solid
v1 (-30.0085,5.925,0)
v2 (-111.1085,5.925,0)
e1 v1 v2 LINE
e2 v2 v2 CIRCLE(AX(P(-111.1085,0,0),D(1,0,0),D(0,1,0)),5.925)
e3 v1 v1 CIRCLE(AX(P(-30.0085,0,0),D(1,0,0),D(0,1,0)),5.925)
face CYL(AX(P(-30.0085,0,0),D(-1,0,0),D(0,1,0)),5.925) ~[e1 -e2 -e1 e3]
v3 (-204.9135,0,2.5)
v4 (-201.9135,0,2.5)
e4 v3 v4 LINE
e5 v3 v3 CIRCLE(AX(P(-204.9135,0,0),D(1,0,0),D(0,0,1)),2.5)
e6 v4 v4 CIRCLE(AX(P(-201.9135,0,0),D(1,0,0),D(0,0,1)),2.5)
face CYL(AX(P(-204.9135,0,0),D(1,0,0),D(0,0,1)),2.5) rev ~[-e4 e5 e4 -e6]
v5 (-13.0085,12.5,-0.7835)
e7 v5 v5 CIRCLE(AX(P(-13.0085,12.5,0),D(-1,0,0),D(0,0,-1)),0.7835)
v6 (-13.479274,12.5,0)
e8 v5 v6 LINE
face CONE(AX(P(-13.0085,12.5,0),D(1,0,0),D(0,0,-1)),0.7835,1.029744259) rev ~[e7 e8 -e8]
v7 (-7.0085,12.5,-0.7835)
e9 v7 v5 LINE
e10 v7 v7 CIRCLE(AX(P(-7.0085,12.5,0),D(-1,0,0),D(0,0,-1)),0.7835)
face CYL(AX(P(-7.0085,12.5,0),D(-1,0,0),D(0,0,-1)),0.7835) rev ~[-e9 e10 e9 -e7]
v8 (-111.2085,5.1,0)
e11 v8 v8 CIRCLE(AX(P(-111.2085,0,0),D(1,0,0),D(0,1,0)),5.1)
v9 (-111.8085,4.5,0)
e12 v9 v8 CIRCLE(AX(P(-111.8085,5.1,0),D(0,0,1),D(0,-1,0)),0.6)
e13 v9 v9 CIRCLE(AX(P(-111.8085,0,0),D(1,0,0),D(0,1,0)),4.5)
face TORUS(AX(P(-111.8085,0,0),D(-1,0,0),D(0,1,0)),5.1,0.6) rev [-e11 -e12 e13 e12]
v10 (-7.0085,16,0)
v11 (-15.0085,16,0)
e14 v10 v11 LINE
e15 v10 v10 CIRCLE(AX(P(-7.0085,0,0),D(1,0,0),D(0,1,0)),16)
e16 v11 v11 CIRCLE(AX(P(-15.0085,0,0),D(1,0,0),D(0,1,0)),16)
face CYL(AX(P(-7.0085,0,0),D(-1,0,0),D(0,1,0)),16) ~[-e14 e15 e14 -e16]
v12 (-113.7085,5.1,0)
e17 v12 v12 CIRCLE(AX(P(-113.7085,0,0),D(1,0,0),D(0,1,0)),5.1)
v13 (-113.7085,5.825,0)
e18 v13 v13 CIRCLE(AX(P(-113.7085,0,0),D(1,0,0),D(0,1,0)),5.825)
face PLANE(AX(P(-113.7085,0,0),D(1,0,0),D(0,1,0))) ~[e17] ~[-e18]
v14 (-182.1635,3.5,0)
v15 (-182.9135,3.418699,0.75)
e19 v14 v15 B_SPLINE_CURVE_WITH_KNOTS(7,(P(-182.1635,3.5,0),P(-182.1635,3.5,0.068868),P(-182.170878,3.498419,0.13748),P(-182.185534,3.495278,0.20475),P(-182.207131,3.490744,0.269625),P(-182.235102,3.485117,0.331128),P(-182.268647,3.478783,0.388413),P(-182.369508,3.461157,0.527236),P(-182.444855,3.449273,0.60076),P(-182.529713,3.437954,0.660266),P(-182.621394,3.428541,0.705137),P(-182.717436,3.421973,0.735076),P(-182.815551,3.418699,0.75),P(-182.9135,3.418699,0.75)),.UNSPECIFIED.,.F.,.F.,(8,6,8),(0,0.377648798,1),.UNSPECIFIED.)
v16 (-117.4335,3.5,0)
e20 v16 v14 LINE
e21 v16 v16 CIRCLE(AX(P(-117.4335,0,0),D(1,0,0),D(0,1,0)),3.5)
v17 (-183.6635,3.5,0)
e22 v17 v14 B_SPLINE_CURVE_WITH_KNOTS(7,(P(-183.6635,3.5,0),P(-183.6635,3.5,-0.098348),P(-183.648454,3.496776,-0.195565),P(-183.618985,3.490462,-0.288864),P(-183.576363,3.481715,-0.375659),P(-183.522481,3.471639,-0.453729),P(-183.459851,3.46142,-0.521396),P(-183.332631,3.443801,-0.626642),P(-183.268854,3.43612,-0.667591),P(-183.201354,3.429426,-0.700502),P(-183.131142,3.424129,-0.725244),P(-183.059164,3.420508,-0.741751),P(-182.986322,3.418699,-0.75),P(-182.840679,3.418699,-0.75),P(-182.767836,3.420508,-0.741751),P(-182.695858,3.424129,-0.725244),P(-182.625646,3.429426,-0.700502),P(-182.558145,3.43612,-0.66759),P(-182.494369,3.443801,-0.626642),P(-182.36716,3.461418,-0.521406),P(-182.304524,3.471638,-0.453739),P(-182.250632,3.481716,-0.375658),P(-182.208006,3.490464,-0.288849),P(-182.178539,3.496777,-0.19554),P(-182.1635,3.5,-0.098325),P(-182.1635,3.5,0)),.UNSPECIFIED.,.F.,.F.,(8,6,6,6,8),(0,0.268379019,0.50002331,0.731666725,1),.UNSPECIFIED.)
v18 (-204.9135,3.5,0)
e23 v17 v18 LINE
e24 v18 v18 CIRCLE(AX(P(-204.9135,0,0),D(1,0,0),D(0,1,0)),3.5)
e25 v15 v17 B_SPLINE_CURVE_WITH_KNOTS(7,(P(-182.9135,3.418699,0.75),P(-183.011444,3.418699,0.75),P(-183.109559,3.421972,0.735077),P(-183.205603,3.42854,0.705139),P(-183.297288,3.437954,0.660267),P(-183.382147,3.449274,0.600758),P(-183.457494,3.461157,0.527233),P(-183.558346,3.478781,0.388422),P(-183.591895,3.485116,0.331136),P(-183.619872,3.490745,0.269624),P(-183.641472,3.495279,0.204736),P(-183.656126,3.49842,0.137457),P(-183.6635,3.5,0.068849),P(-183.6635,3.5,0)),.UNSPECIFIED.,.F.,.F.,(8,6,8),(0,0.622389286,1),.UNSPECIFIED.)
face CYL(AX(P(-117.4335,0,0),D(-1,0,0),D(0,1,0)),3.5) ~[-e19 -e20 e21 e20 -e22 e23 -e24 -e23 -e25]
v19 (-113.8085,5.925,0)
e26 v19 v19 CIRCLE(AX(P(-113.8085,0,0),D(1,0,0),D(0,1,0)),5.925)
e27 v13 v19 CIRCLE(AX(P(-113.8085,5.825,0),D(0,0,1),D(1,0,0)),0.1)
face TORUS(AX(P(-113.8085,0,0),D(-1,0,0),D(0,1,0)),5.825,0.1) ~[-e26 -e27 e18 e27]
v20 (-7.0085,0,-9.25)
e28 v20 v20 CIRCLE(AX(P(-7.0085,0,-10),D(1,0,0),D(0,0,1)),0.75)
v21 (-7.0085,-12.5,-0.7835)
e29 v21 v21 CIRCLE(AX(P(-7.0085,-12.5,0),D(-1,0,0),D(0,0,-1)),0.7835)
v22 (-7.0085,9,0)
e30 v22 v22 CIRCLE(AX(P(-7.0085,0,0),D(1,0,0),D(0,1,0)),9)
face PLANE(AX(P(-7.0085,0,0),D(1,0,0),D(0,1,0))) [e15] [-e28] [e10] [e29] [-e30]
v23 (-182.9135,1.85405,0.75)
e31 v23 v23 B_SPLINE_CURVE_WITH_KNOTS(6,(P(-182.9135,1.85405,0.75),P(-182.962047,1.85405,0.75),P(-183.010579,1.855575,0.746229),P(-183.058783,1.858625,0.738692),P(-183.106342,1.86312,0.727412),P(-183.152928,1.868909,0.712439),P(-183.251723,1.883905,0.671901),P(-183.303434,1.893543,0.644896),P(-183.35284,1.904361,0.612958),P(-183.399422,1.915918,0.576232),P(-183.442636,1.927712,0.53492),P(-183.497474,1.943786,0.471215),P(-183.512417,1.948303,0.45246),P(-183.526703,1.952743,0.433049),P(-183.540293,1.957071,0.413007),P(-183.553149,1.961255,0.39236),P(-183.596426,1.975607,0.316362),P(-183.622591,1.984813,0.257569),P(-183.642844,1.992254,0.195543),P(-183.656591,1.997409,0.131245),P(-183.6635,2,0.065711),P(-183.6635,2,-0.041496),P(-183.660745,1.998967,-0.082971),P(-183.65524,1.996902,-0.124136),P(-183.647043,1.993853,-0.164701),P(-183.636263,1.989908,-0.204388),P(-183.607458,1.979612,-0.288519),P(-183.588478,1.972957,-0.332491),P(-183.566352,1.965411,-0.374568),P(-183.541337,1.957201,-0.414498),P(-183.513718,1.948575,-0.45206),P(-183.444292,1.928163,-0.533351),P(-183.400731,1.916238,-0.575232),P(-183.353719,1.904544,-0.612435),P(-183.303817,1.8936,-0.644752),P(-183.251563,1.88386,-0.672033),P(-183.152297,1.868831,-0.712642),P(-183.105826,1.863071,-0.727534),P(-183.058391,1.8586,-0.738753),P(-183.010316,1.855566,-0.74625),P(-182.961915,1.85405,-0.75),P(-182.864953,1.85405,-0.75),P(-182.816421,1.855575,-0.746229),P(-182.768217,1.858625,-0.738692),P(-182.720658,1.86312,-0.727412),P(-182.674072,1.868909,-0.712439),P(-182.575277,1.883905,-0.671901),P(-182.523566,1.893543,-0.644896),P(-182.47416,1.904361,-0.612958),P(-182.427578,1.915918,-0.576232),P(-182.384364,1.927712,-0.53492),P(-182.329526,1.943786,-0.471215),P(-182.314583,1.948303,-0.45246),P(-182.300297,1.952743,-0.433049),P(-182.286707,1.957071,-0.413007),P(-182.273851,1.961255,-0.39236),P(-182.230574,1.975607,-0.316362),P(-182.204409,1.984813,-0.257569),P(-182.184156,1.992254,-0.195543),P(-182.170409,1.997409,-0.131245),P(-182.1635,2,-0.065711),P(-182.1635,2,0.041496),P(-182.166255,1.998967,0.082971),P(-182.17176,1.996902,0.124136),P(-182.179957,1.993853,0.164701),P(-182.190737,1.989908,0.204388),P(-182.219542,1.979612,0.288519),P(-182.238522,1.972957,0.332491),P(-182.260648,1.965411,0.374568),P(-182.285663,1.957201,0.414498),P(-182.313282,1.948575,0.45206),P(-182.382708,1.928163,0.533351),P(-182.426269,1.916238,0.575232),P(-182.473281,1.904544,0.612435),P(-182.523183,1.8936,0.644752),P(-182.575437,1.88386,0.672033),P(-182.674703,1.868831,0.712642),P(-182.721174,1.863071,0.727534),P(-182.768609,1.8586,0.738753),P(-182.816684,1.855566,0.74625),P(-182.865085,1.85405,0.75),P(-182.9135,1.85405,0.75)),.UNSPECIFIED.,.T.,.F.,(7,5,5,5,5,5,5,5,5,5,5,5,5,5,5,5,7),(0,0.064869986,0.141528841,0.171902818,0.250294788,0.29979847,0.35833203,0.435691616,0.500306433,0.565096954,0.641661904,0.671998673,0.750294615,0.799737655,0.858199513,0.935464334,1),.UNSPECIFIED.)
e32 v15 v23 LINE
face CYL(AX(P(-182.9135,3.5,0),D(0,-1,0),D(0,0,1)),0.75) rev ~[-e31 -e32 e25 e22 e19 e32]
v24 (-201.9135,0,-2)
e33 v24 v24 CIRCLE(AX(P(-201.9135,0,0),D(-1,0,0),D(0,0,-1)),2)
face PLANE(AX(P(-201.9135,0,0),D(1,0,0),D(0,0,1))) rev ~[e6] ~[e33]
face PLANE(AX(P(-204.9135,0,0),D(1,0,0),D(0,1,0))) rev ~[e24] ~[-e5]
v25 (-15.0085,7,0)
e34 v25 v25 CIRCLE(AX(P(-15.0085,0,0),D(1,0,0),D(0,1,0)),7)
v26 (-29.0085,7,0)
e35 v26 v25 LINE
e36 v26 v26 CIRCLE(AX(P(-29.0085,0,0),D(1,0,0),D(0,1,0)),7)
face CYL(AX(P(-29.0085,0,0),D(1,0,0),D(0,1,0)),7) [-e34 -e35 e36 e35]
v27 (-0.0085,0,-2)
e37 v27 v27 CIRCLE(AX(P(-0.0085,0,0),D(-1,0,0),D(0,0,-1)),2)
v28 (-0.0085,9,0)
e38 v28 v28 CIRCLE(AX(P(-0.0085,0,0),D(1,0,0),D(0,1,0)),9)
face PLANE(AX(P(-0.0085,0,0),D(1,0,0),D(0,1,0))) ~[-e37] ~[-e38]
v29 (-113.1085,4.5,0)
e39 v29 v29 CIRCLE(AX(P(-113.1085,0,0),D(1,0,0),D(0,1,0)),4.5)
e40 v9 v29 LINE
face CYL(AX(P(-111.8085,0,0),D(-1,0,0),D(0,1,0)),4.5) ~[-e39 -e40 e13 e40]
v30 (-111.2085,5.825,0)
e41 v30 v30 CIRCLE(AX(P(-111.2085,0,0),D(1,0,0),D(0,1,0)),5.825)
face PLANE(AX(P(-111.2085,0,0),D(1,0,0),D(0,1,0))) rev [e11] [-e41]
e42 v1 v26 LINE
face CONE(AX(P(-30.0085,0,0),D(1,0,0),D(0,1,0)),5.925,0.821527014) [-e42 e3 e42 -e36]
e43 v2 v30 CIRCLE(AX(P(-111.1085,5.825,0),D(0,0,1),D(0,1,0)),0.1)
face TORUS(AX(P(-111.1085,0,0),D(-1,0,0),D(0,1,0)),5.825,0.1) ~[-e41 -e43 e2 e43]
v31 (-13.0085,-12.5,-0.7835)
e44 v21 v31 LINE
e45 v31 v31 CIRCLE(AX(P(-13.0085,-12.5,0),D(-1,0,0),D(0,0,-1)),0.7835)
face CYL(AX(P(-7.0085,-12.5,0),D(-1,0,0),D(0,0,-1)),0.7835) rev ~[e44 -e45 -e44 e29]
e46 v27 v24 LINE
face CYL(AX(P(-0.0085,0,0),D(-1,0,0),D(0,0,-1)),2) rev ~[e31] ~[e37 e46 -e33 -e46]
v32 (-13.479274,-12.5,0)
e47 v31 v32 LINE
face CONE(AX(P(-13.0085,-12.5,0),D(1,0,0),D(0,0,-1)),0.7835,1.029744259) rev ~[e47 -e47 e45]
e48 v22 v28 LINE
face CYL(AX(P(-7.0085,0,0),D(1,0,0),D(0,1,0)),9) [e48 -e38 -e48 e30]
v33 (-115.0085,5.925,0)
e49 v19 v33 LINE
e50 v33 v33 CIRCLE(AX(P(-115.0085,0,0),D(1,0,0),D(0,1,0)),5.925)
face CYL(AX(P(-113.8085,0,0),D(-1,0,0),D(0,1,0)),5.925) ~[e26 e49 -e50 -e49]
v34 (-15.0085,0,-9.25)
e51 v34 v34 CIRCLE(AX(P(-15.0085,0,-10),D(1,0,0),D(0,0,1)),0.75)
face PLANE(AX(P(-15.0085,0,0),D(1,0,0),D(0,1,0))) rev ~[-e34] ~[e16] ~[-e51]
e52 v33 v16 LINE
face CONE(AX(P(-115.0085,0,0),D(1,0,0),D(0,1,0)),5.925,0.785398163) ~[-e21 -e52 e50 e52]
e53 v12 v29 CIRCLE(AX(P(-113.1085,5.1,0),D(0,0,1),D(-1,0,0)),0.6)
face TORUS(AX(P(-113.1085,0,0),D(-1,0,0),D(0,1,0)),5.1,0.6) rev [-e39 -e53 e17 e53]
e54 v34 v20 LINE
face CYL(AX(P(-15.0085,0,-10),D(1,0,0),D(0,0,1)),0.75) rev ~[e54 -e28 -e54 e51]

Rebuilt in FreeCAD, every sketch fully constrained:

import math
import FreeCAD as App
import Part
import Sketcher
Q = App.Units.Quantity

doc = App.newDocument("Part")
params = doc.addObject("Spreadsheet::Sheet", "Params")
for row, (alias, value) in enumerate([
    ("sketch1_radius", "0.1 mm"),
    ("sketch1_radius2", "0.6 mm"),
    ("sketch1_width", "7 mm"),
    ("sketch1_width2", "8 mm"),
    ("sketch1_width3", "14 mm"),
    ("revolution_angle", "360 deg"),
    ("sketch2_diameter", "1.5 mm"),
    ("hole_diameter", "1.5 mm"),
    ("hole_depth", "3.5 mm"),
    ("sketch3_diameter", "4 mm"),
    ("hole2_diameter", "4 mm"),
    ("hole2_depth", "223 mm"),
    ("sketch4_diameter", "1.5 mm"),
    ("hole3_diameter", "1.5 mm"),
    ("hole3_depth", "8 mm"),
    ("hole4_diameter", "1.567 mm"),
    ("hole4_depth", "6 mm"),
    ("sketch6_diameter", "5 mm"),
    ("hole5_diameter", "5 mm"),
    ("hole5_depth", "3 mm"),
], start=1):
    params.set(f"A{row}", alias)
    params.set(f"B{row}", "=" + value)
    params.setAlias(f"B{row}", alias)

body = doc.addObject("PartDesign::Body", "Body")

# Sketch on XY plane
sketch1 = body.newObject("Sketcher::SketchObject", "Sketch")
sketch1.AttachmentSupport = (doc.getObject("XY_Plane"), [""])
sketch1.MapMode = "FlatFace"
sketch1.addGeometry([
    Part.LineSegment(App.Vector(-204.91, 0, 0), App.Vector(-0.01, 0, 0)),  # 0
    Part.LineSegment(App.Vector(-0.01, 0, 0), App.Vector(-0.01, 9, 0)),  # 1
    Part.LineSegment(App.Vector(-0.01, 9, 0), App.Vector(-7.01, 9, 0)),  # 2
    Part.LineSegment(App.Vector(-7.01, 9, 0), App.Vector(-7.01, 16, 0)),  # 3
    Part.LineSegment(App.Vector(-7.01, 16, 0), App.Vector(-15.01, 16, 0)),  # 4
    Part.LineSegment(App.Vector(-15.01, 16, 0), App.Vector(-15.01, 7, 0)),  # 5
    Part.LineSegment(App.Vector(-15.01, 7, 0), App.Vector(-29.01, 7, 0)),  # 6
    Part.LineSegment(App.Vector(-29.01, 7, 0), App.Vector(-30.01, 5.92, 0)),  # 7
    Part.LineSegment(App.Vector(-30.01, 5.92, 0), App.Vector(-111.11, 5.92, 0)),  # 8
    Part.ArcOfCircle(Part.Circle(App.Vector(-111.11, 5.83, 0), App.Vector(0, 0, 1), 0.1), math.radians(90), math.radians(180)),  # 9
    Part.LineSegment(App.Vector(-111.21, 5.83, 0), App.Vector(-111.21, 5.1, 0)),  # 10
    Part.ArcOfCircle(Part.Circle(App.Vector(-111.81, 5.1, 0), App.Vector(0, 0, 1), 0.6), math.radians(-90), math.radians(0)),  # 11
    Part.LineSegment(App.Vector(-111.81, 4.5, 0), App.Vector(-113.11, 4.5, 0)),  # 12
    Part.ArcOfCircle(Part.Circle(App.Vector(-113.11, 5.1, 0), App.Vector(0, 0, 1), 0.6), math.radians(180), math.radians(270)),  # 13
    Part.LineSegment(App.Vector(-113.71, 5.1, 0), App.Vector(-113.71, 5.83, 0)),  # 14
    Part.ArcOfCircle(Part.Circle(App.Vector(-113.81, 5.83, 0), App.Vector(0, 0, 1), 0.1), math.radians(0), math.radians(90)),  # 15
    Part.LineSegment(App.Vector(-113.81, 5.92, 0), App.Vector(-115.01, 5.92, 0)),  # 16
    Part.LineSegment(App.Vector(-115.01, 5.92, 0), App.Vector(-117.43, 3.5, 0)),  # 17
    Part.LineSegment(App.Vector(-117.43, 3.5, 0), App.Vector(-204.91, 3.5, 0)),  # 18
    Part.LineSegment(App.Vector(-204.91, 3.5, 0), App.Vector(-204.91, 0, 0)),  # 19
], False)
sketch1.addConstraint([
    Sketcher.Constraint("Coincident", 0, 2, 1, 1),
    Sketcher.Constraint("Coincident", 1, 2, 2, 1),
    Sketcher.Constraint("Coincident", 2, 2, 3, 1),
    Sketcher.Constraint("Coincident", 3, 2, 4, 1),
    Sketcher.Constraint("Coincident", 4, 2, 5, 1),
    Sketcher.Constraint("Coincident", 5, 2, 6, 1),
    Sketcher.Constraint("Coincident", 6, 2, 7, 1),
    Sketcher.Constraint("Coincident", 7, 2, 8, 1),
    Sketcher.Constraint("Tangent", 8, 2, 9, 1),
    Sketcher.Constraint("Tangent", 9, 2, 10, 1),
    Sketcher.Constraint("Tangent", 10, 2, 11, 2),
    Sketcher.Constraint("Tangent", 11, 1, 12, 1),
    Sketcher.Constraint("Tangent", 12, 2, 13, 2),
    Sketcher.Constraint("Tangent", 13, 1, 14, 1),
    Sketcher.Constraint("Tangent", 14, 2, 15, 1),
    Sketcher.Constraint("Tangent", 15, 2, 16, 1),
    Sketcher.Constraint("Coincident", 16, 2, 17, 1),
    Sketcher.Constraint("Coincident", 17, 2, 18, 1),
    Sketcher.Constraint("Coincident", 18, 2, 19, 1),
    Sketcher.Constraint("Coincident", 19, 2, 0, 1),
    Sketcher.Constraint("Horizontal", 0),
    Sketcher.Constraint("Vertical", 1),
    Sketcher.Constraint("Horizontal", 2),
    Sketcher.Constraint("Vertical", 3),
    Sketcher.Constraint("Horizontal", 4),
    Sketcher.Constraint("Vertical", 5),
    Sketcher.Constraint("Horizontal", 6),
    Sketcher.Constraint("Horizontal", 8),
    Sketcher.Constraint("Vertical", 10),
    Sketcher.Constraint("Horizontal", 12),
    Sketcher.Constraint("Vertical", 14),
    Sketcher.Constraint("Horizontal", 16),
    Sketcher.Constraint("Horizontal", 18),
    Sketcher.Constraint("Vertical", 19),
    Sketcher.Constraint("Equal", 11, 13),
    Sketcher.Constraint("Equal", 9, 15),
    Sketcher.Constraint("PointOnObject", 0, 2, -1),
    Sketcher.Constraint("Horizontal", 9, 3, 15, 3),
    Sketcher.Constraint("Equal", 2, 3),
    Sketcher.Constraint("Equal", 1, 5),
    Sketcher.Constraint("Radius", 9, Q("0.1 mm")),
    Sketcher.Constraint("Radius", 11, Q("0.6 mm")),
    Sketcher.Constraint("DistanceX", 2, 2, 2, 1, Q("7 mm")),
    Sketcher.Constraint("DistanceX", 4, 2, 4, 1, Q("8 mm")),
    Sketcher.Constraint("DistanceX", 6, 2, 6, 1, Q("14 mm")),
    Sketcher.Constraint("DistanceY", 1, 1, 1, 2, Q("9 mm")),
    Sketcher.Constraint("DistanceX", 12, 2, 12, 1, Q("1.3 mm")),
    Sketcher.Constraint("DistanceY", 19, 2, 19, 1, Q("3.5 mm")),
    Sketcher.Constraint("DistanceX", 7, 2, 5, 2, Q("15 mm")),
    Sketcher.Constraint("DistanceX", 18, 2, 18, 1, Q("87.48 mm")),
    Sketcher.Constraint("DistanceY", -1, 1, 11, 1, Q("4.5 mm")),
    Sketcher.Constraint("DistanceX", 16, 2, 14, 2, Q("1.3 mm")),
    Sketcher.Constraint("Angle", 17, Q("-135 deg")),
    Sketcher.Constraint("DistanceX", 8, 2, 8, 1, Q("81.1 mm")),
    Sketcher.Constraint("DistanceY", -1, 1, 7, 2, Q("5.925 mm")),
    Sketcher.Constraint("DistanceX", 9, 3, -1, 1, Q("111.1085 mm")),
])
sketch1.setExpression("Constraints[40]", "Params.sketch1_radius")
sketch1.setExpression("Constraints[41]", "Params.sketch1_radius2")
sketch1.setExpression("Constraints[42]", "Params.sketch1_width")
sketch1.setExpression("Constraints[43]", "Params.sketch1_width2")
sketch1.setExpression("Constraints[44]", "Params.sketch1_width3")
revolution = body.newObject("PartDesign::Revolution", "Revolution")
revolution.Profile = sketch1
revolution.ReferenceAxis = (sketch1, ["H_Axis"])
revolution.setExpression("Angle", "Params.revolution_angle")

# Sketch on XZ plane
sketch2 = body.newObject("Sketcher::SketchObject", "Sketch001")
sketch2.AttachmentSupport = (doc.getObject("XZ_Plane"), [""])
sketch2.MapMode = "FlatFace"
sketch2.AttachmentOffset = App.Placement(App.Vector(0, 0, -3.5), App.Rotation())
sketch2.addGeometry(Part.Circle(App.Vector(-182.9, 0, 0), App.Vector(0, 0, 1), 0.8), False)
sketch2.addConstraint([
    Sketcher.Constraint("PointOnObject", 0, 3, -1),
    Sketcher.Constraint("Diameter", 0, Q("1.5 mm")),
    Sketcher.Constraint("DistanceX", 0, 3, -1, 1, Q("182.9135 mm")),
])
sketch2.setExpression("Constraints[1]", "Params.sketch2_diameter")
doc.recompute()
hole = body.newObject("PartDesign::Hole", "Hole")
hole.Profile = sketch2
hole.ThreadType = "None"
hole.setExpression("Diameter", "Params.hole_diameter")
hole.DepthType = "Dimension"
hole.setExpression("Depth", "Params.hole_depth")
hole.DrillPoint = "Flat"
hole.Reversed = True

# Sketch on YZ plane
sketch3 = body.newObject("Sketcher::SketchObject", "Sketch002")
sketch3.AttachmentSupport = (doc.getObject("YZ_Plane"), [""])
sketch3.MapMode = "FlatFace"
sketch3.AttachmentOffset = App.Placement(App.Vector(0, 0, -0.0085), App.Rotation())
sketch3.addGeometry(Part.Circle(App.Vector(0, 0, 0), App.Vector(0, 0, 1), 2), False)
sketch3.addConstraint([
    Sketcher.Constraint("Coincident", 0, 3, -1, 1),
    Sketcher.Constraint("Diameter", 0, Q("4 mm")),
])
sketch3.setExpression("Constraints[1]", "Params.sketch3_diameter")
doc.recompute()
hole2 = body.newObject("PartDesign::Hole", "Hole001")
hole2.Profile = sketch3
hole2.ThreadType = "None"
hole2.setExpression("Diameter", "Params.hole2_diameter")
hole2.DepthType = "Dimension"
hole2.setExpression("Depth", "Params.hole2_depth")
hole2.DrillPoint = "Flat"

# Sketch on YZ plane
sketch4 = body.newObject("Sketcher::SketchObject", "Sketch003")
sketch4.AttachmentSupport = (doc.getObject("YZ_Plane"), [""])
sketch4.MapMode = "FlatFace"
sketch4.AttachmentOffset = App.Placement(App.Vector(0, 0, -15.0085), App.Rotation())
sketch4.addGeometry(Part.Circle(App.Vector(0, -10, 0), App.Vector(0, 0, 1), 0.8), False)
sketch4.addConstraint([
    Sketcher.Constraint("PointOnObject", 0, 3, -2),
    Sketcher.Constraint("Diameter", 0, Q("1.5 mm")),
    Sketcher.Constraint("DistanceY", 0, 3, -1, 1, Q("10 mm")),
])
sketch4.setExpression("Constraints[1]", "Params.sketch4_diameter")
doc.recompute()
hole3 = body.newObject("PartDesign::Hole", "Hole002")
hole3.Profile = sketch4
hole3.ThreadType = "None"
hole3.setExpression("Diameter", "Params.hole3_diameter")
hole3.DepthType = "Dimension"
hole3.setExpression("Depth", "Params.hole3_depth")
hole3.DrillPoint = "Flat"
hole3.Reversed = True

# Sketch on YZ plane
sketch5 = body.newObject("Sketcher::SketchObject", "Sketch004")
sketch5.AttachmentSupport = (doc.getObject("YZ_Plane"), [""])
sketch5.MapMode = "FlatFace"
sketch5.AttachmentOffset = App.Placement(App.Vector(0, 0, -7.0085), App.Rotation())
sketch5.addGeometry([
    Part.Circle(App.Vector(-12.5, 0, 0), App.Vector(0, 0, 1), 0.8),
    Part.Circle(App.Vector(12.5, 0, 0), App.Vector(0, 0, 1), 0.8),
], False)
sketch5.addConstraint([
    Sketcher.Constraint("Equal", 0, 1),
    Sketcher.Constraint("Symmetric", 0, 3, 1, 3, -1, 1),
    Sketcher.Constraint("PointOnObject", 0, 3, -1),
    Sketcher.Constraint("Diameter", 0, Q("1.567 mm")),
    Sketcher.Constraint("DistanceX", 0, 3, 1, 3, Q("25 mm")),
])
doc.recompute()
hole4 = body.newObject("PartDesign::Hole", "Hole003")
hole4.Profile = sketch5
hole4.ThreadType = "None"
hole4.setExpression("Diameter", "Params.hole4_diameter")
hole4.DepthType = "Dimension"
hole4.setExpression("Depth", "Params.hole4_depth")
hole4.DrillPoint = "Angled"
hole4.DrillPointAngle = 118

# Sketch on YZ plane
sketch6 = body.newObject("Sketcher::SketchObject", "Sketch005")
sketch6.AttachmentSupport = (doc.getObject("YZ_Plane"), [""])
sketch6.MapMode = "FlatFace"
sketch6.AttachmentOffset = App.Placement(App.Vector(0, 0, -204.9135), App.Rotation())
sketch6.addGeometry(Part.Circle(App.Vector(0, 0, 0), App.Vector(0, 0, 1), 2.5), False)
sketch6.addConstraint([
    Sketcher.Constraint("Coincident", 0, 3, -1, 1),
    Sketcher.Constraint("Diameter", 0, Q("5 mm")),
])
sketch6.setExpression("Constraints[1]", "Params.sketch6_diameter")
doc.recompute()
hole5 = body.newObject("PartDesign::Hole", "Hole004")
hole5.Profile = sketch6
hole5.ThreadType = "None"
hole5.setExpression("Diameter", "Params.hole5_diameter")
hole5.DepthType = "Dimension"
hole5.setExpression("Depth", "Params.hole5_depth")
hole5.DrillPoint = "Flat"
hole5.Reversed = True

doc.recompute()
